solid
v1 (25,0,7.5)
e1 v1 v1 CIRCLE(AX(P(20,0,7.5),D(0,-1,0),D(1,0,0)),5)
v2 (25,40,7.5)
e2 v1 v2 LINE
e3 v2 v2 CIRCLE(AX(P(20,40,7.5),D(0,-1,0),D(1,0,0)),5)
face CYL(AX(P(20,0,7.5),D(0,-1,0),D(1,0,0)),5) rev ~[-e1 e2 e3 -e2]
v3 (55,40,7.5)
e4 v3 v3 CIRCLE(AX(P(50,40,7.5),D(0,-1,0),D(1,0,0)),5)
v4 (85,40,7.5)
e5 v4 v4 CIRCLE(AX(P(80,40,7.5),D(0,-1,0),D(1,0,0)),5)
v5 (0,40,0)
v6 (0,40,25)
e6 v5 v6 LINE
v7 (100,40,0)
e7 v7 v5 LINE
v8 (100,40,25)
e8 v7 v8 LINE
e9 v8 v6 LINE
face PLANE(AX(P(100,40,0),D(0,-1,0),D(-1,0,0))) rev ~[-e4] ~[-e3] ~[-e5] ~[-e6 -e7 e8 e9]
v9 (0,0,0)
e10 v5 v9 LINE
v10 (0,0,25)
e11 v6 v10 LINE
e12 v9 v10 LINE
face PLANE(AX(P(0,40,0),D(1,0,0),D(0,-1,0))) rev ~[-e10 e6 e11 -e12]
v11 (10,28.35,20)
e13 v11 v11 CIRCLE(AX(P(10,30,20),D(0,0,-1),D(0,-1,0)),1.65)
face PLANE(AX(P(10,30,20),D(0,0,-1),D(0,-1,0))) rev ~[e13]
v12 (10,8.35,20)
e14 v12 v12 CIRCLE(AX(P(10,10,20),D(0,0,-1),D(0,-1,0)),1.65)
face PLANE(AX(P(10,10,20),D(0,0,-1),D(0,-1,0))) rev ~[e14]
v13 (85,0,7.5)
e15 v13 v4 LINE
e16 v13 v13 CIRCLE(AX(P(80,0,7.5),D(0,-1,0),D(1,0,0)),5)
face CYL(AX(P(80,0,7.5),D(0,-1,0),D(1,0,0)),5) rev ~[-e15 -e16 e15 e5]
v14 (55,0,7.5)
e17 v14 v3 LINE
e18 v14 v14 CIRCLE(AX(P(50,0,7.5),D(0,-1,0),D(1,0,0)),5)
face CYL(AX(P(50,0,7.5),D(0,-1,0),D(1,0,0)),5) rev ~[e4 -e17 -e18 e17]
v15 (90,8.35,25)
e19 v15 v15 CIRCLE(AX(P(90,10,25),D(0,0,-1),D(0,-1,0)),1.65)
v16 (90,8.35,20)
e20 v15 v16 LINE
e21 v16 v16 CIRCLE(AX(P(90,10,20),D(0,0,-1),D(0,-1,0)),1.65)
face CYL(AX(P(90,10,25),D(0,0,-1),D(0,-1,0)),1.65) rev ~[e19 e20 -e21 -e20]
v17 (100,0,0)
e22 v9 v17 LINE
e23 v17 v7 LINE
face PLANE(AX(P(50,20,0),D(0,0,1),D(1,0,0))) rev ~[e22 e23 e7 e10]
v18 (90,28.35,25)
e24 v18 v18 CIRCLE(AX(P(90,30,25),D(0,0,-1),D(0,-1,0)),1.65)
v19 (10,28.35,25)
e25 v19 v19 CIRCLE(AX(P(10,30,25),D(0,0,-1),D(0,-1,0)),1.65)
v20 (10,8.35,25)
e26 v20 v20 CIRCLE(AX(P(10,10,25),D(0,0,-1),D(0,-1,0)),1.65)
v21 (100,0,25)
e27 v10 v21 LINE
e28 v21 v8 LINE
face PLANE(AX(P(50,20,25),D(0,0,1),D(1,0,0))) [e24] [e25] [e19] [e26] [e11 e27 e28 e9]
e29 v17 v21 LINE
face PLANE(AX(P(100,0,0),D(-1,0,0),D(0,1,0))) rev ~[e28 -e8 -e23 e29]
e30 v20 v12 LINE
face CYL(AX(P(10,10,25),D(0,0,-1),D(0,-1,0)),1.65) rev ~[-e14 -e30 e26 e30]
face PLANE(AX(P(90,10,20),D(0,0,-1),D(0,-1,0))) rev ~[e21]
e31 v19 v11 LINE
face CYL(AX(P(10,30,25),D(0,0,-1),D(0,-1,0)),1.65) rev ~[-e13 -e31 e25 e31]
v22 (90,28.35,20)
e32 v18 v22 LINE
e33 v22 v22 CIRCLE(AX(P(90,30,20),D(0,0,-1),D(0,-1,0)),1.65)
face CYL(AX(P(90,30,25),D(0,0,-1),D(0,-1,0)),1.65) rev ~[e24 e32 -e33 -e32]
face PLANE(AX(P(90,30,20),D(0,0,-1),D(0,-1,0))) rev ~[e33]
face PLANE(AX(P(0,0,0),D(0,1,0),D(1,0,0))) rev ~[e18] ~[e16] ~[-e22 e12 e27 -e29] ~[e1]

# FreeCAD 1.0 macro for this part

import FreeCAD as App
import Part
import Sketcher
Q = App.Units.Quantity


def add_polygon(sketch, points):
    """Adds a closed chain of lines whose ends are joined by coincident constraints."""
    first, n = sketch.GeometryCount, len(points)
    for a, b in zip(points, points[1:] + points[:1]):
        sketch.addGeometry(Part.LineSegment(App.Vector(*a, 0), App.Vector(*b, 0)), False)
    for i in range(n):
        sketch.addConstraint(Sketcher.Constraint("Coincident", first + i, 2, first + (i + 1) % n, 1))

doc = App.newDocument("Part")
body = doc.addObject("PartDesign::Body", "Body")

sketch1 = body.newObject("Sketcher::SketchObject", "Sketch")
sketch1.AttachmentSupport = (doc.getObject("XY_Plane"), [""])
sketch1.MapMode = "FlatFace"
add_polygon(sketch1, [(0, 0), (100, 0), (100, 40), (0, 40)])
sketch1.addConstraint([
    Sketcher.Constraint("Horizontal", 0),
    Sketcher.Constraint("Vertical", 1),
    Sketcher.Constraint("Horizontal", 2),
    Sketcher.Constraint("Vertical", 3),
    Sketcher.Constraint("Coincident", 3, 2, -1, 1),
    Sketcher.Constraint("DistanceX", 0, 1, 0, 2, Q("100 mm")),
    Sketcher.Constraint("DistanceY", 1, 1, 1, 2, Q("40 mm")),
])
pad1 = body.newObject("PartDesign::Pad", "Pad")
pad1.Profile = sketch1
pad1.Length = 25

sketch2 = body.newObject("Sketcher::SketchObject", "Sketch001")
sketch2.AttachmentSupport = (doc.getObject("XZ_Plane"), [""])
sketch2.MapMode = "FlatFace"
sketch2.addGeometry([
    Part.Circle(App.Vector(20, 8, 0), App.Vector(0, 0, 1), 5),
    Part.Circle(App.Vector(50, 8, 0), App.Vector(0, 0, 1), 5),
    Part.Circle(App.Vector(80, 8, 0), App.Vector(0, 0, 1), 5),
], False)
sketch2.addConstraint([
    Sketcher.Constraint("Equal", 0, 1),
    Sketcher.Constraint("Equal", 1, 2),
    Sketcher.Constraint("Horizontal", 0, 3, 1, 3),
    Sketcher.Constraint("Horizontal", 1, 3, 2, 3),
    Sketcher.Constraint("Diameter", 0, Q("10 mm")),
    Sketcher.Constraint("DistanceX", -1, 1, 0, 3, Q("20 mm")),
    Sketcher.Constraint("DistanceX", -1, 1, 1, 3, Q("50 mm")),
    Sketcher.Constraint("DistanceX", -1, 1, 2, 3, Q("80 mm")),
    Sketcher.Constraint("DistanceY", -1, 1, 0, 3, Q("7.5 mm")),
])
pocket1 = body.newObject("PartDesign::Pocket", "Pocket")
pocket1.Profile = sketch2
pocket1.Type = "UpToFirst"

sketch3 = body.newObject("Sketcher::SketchObject", "Sketch002")
sketch3.AttachmentSupport = (doc.getObject("XY_Plane"), [""])
sketch3.MapMode = "FlatFace"
sketch3.AttachmentOffset = App.Placement(App.Vector(0, 0, 25), App.Rotation())
sketch3.addGeometry(Part.Circle(App.Vector(10, 10, 0), App.Vector(0, 0, 1), 1.6), False)
sketch3.addConstraint([
    Sketcher.Constraint("Diameter", 0, Q("3.3 mm")),
    Sketcher.Constraint("DistanceX", -1, 1, 0, 3, Q("10 mm")),
    Sketcher.Constraint("DistanceY", -1, 1, 0, 3, Q("10 mm")),
])
doc.recompute()
hole = body.newObject("PartDesign::Hole", "Hole")
hole.Profile = sketch3
hole.ThreadType = "None"
hole.Diameter = 3.3
hole.DepthType = "Dimension"
hole.Depth = 5
hole.DrillPoint = "Flat"

sketch4 = body.newObject("Sketcher::SketchObject", "Sketch003")
sketch4.AttachmentSupport = (doc.getObject("XY_Plane"), [""])
sketch4.MapMode = "FlatFace"
sketch4.AttachmentOffset = App.Placement(App.Vector(0, 0, 25), App.Rotation())
sketch4.addGeometry(Part.Circle(App.Vector(90, 10, 0), App.Vector(0, 0, 1), 1.6), False)
sketch4.addConstraint([
    Sketcher.Constraint("Diameter", 0, Q("3.3 mm")),
    Sketcher.Constraint("DistanceX", -1, 1, 0, 3, Q("90 mm")),
    Sketcher.Constraint("DistanceY", -1, 1, 0, 3, Q("10 mm")),
])
doc.recompute()
hole2 = body.newObject("PartDesign::Hole", "Hole001")
hole2.Profile = sketch4
hole2.ThreadType = "None"
hole2.Diameter = 3.3
hole2.DepthType = "Dimension"
hole2.Depth = 5
hole2.DrillPoint = "Flat"

sketch5 = body.newObject("Sketcher::SketchObject", "Sketch004")
sketch5.AttachmentSupport = (doc.getObject("XY_Plane"), [""])
sketch5.MapMode = "FlatFace"
sketch5.AttachmentOffset = App.Placement(App.Vector(0, 0, 25), App.Rotation())
sketch5.addGeometry(Part.Circle(App.Vector(90, 30, 0), App.Vector(0, 0, 1), 1.6), False)
sketch5.addConstraint([
    Sketcher.Constraint("Diameter", 0, Q("3.3 mm")),
    Sketcher.Constraint("DistanceX", -1, 1, 0, 3, Q("90 mm")),
    Sketcher.Constraint("DistanceY", -1, 1, 0, 3, Q("30 mm")),
])
doc.recompute()
hole3 = body.newObject("PartDesign::Hole", "Hole002")
hole3.Profile = sketch5
hole3.ThreadType = "None"
hole3.Diameter = 3.3
hole3.DepthType = "Dimension"
hole3.Depth = 5
hole3.DrillPoint = "Flat"

sketch6 = body.newObject("Sketcher::SketchObject", "Sketch005")
sketch6.AttachmentSupport = (doc.getObject("XY_Plane"), [""])
sketch6.MapMode = "FlatFace"
sketch6.AttachmentOffset = App.Placement(App.Vector(0, 0, 25), App.Rotation())
sketch6.addGeometry(Part.Circle(App.Vector(10, 30, 0), App.Vector(0, 0, 1), 1.6), False)
sketch6.addConstraint([
    Sketcher.Constraint("Diameter", 0, Q("3.3 mm")),
    Sketcher.Constraint("DistanceX", -1, 1, 0, 3, Q("10 mm")),
    Sketcher.Constraint("DistanceY", -1, 1, 0, 3, Q("30 mm")),
])
doc.recompute()
hole4 = body.newObject("PartDesign::Hole", "Hole003")
hole4.Profile = sketch6
hole4.ThreadType = "None"
hole4.Diameter = 3.3
hole4.DepthType = "Dimension"
hole4.Depth = 5
hole4.DrillPoint = "Flat"

doc.recompute()
